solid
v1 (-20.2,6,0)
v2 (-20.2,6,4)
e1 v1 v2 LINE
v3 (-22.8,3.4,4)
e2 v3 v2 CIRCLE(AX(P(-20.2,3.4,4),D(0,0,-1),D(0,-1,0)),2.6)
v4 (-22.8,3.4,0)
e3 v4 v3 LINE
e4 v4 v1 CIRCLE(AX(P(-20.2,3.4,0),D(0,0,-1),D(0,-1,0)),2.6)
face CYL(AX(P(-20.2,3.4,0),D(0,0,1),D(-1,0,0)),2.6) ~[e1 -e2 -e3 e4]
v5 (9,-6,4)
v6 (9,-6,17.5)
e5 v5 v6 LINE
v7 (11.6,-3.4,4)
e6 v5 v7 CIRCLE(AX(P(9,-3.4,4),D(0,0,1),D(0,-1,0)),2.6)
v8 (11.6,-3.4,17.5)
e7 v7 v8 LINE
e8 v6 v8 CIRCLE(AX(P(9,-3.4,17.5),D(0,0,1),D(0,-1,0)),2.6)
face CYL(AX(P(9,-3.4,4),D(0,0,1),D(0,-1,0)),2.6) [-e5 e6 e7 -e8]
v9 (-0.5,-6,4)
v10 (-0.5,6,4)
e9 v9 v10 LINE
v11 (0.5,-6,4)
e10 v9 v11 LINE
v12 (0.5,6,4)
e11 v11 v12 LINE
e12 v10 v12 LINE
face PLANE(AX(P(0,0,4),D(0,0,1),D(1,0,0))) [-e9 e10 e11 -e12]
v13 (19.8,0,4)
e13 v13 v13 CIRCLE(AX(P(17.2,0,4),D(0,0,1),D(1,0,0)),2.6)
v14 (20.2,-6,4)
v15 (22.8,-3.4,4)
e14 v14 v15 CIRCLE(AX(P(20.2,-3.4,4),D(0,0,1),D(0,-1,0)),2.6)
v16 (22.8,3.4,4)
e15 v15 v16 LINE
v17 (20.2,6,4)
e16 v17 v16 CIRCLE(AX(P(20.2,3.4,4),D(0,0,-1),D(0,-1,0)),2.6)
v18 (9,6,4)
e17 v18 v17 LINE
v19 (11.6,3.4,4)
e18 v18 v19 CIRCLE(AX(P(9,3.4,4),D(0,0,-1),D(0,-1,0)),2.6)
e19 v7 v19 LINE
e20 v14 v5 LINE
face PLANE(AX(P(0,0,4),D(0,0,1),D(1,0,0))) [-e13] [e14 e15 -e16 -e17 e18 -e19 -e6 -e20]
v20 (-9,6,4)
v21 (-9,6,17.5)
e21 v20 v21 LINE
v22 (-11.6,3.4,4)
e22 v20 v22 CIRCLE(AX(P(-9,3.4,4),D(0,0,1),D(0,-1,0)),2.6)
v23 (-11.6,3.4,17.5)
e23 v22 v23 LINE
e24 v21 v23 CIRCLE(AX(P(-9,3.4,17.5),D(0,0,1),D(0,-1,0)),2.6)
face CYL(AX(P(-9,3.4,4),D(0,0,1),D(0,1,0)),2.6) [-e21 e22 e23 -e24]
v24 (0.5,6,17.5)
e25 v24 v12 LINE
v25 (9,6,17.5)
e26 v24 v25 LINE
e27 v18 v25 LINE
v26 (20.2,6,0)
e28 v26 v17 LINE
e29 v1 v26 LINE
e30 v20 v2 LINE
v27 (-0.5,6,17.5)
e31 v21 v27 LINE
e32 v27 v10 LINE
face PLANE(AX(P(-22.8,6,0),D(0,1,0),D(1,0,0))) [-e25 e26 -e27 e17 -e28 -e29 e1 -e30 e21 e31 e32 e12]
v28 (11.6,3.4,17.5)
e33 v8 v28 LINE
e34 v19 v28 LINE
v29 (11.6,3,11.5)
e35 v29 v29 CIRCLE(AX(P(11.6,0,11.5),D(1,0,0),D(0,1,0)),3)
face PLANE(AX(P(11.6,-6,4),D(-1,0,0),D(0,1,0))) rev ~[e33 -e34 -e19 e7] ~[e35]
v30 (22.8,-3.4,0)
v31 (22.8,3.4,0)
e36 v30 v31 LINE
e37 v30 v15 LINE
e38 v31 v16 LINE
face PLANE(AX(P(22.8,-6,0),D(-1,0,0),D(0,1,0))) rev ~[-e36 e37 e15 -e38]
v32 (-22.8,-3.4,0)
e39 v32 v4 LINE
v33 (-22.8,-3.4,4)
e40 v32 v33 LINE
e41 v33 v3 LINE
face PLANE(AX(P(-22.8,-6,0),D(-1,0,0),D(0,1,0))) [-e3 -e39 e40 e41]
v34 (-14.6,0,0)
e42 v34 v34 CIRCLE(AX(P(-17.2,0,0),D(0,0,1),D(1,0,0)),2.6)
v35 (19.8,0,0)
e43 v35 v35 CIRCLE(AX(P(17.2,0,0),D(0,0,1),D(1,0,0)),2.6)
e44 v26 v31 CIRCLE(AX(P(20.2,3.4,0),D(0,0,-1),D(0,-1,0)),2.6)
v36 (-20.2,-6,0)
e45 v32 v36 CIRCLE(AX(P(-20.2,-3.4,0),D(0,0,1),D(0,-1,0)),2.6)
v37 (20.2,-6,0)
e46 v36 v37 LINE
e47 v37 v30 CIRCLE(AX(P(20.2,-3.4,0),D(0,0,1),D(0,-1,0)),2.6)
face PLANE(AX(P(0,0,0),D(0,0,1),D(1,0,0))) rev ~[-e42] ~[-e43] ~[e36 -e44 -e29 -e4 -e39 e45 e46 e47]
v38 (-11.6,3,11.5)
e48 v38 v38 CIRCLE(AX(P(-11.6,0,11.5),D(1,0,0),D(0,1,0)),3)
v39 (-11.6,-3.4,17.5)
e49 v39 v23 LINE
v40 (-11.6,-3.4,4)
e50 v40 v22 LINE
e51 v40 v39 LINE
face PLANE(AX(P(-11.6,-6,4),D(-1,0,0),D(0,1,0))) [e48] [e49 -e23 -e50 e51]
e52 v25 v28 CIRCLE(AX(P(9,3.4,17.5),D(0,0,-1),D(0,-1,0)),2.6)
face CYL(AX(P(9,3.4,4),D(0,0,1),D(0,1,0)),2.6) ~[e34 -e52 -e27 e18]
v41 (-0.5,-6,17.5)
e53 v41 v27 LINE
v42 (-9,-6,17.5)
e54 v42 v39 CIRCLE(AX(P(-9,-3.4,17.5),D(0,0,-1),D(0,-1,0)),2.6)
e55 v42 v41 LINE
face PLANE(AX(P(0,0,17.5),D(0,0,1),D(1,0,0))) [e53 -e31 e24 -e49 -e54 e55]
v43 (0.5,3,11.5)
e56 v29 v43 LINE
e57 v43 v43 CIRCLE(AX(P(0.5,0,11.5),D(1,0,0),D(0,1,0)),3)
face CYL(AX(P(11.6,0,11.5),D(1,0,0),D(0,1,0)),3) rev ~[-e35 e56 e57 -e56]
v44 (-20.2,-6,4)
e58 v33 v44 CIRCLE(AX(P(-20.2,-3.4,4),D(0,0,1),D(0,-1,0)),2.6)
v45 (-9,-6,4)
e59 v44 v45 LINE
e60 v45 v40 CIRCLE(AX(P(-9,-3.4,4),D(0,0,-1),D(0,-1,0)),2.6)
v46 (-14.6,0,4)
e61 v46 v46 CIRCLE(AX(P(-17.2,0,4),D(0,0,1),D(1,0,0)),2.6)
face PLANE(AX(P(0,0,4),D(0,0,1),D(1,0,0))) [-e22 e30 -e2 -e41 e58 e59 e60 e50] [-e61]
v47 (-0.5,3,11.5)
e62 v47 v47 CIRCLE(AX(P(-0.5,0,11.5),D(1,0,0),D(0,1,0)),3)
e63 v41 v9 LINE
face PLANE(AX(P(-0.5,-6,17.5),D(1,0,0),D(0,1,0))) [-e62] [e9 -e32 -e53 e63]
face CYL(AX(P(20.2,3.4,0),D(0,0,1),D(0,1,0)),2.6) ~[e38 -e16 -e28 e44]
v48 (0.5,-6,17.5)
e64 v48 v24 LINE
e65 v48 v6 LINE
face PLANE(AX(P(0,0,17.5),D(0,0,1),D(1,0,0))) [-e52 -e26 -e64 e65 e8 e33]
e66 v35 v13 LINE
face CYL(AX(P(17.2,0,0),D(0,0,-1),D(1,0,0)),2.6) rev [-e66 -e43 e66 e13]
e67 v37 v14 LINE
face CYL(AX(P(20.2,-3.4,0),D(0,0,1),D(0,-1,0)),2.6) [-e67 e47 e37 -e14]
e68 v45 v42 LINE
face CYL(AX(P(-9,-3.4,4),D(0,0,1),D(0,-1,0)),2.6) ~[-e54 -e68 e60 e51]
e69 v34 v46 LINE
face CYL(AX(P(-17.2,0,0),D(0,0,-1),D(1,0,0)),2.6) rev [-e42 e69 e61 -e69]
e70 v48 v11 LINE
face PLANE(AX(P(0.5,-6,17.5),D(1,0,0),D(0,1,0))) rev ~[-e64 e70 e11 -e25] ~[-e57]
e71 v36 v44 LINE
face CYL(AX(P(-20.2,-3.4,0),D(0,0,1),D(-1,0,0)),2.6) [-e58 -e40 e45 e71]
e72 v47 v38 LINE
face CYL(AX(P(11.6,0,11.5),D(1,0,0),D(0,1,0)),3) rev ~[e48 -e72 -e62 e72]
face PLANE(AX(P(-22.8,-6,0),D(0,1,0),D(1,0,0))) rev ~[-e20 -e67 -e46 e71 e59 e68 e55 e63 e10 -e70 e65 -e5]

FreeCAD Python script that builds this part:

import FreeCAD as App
import Part
import Sketcher


def edges_at(feature, points):
    """Names of the edges that pass closest to the given points."""
    edges = feature.Shape.Edges
    near = lambda p: min(range(len(edges)), key=lambda i: edges[i].distToShape(Part.Vertex(*p))[0])
    return sorted({f"Edge{near(p) + 1}" for p in points})


def add_polygon(sketch, points):
    """Adds a closed chain of lines whose ends are joined by coincident constraints."""
    first, n = sketch.GeometryCount, len(points)
    for a, b in zip(points, points[1:] + points[:1]):
        sketch.addGeometry(Part.LineSegment(App.Vector(*a, 0), App.Vector(*b, 0)), False)
    for i in range(n):
        sketch.addConstraint(Sketcher.Constraint("Coincident", first + i, 2, first + (i + 1) % n, 1))

doc = App.newDocument("Part")
body = doc.addObject("PartDesign::Body", "Body")

# Sketch on XY plane
sketch1 = body.newObject("Sketcher::SketchObject", "Sketch")
sketch1.AttachmentSupport = (doc.getObject("XY_Plane"), [""])
sketch1.MapMode = "FlatFace"
add_polygon(sketch1, [(-22.8, 6), (-22.8, -6), (22.8, -6), (22.8, 6)])  # lines 0-3
sketch1.addGeometry(Part.Circle(App.Vector(-17.2, 0, 0), App.Vector(0, 0, 1), 2.6), False)  # 4
sketch1.addGeometry(Part.Circle(App.Vector(17.2, 0, 0), App.Vector(0, 0, 1), 2.6), False)  # 5
sketch1.addConstraint(Sketcher.Constraint("Vertical", 0))
sketch1.addConstraint(Sketcher.Constraint("Horizontal", 1))
sketch1.addConstraint(Sketcher.Constraint("Vertical", 2))
sketch1.addConstraint(Sketcher.Constraint("Horizontal", 3))
sketch1.addConstraint(Sketcher.Constraint("Equal", 4, 5))
sketch1.addConstraint(Sketcher.Constraint("Symmetric", 4, 3, 5, 3, -1, 1))
sketch1.addConstraint(Sketcher.Constraint("Symmetric", 0, 2, 2, 2, -1, 1))
sketch1.addConstraint(Sketcher.Constraint("PointOnObject", 4, 3, -1))
sketch1.addConstraint(Sketcher.Constraint("Diameter", 4, 5.2))
sketch1.addConstraint(Sketcher.Constraint("DistanceY", 0, 2, 0, 1, 12.0))
sketch1.addConstraint(Sketcher.Constraint("DistanceX", 1, 1, 1, 2, 45.6))
sketch1.addConstraint(Sketcher.Constraint("DistanceX", 0, 2, 5, 3, 40.0))
pad1 = body.newObject("PartDesign::Pad", "Pad")
pad1.Profile = sketch1
pad1.Length = 4

# Sketch on XY plane
sketch2 = body.newObject("Sketcher::SketchObject", "Sketch001")
sketch2.AttachmentSupport = (doc.getObject("XY_Plane"), [""])
sketch2.MapMode = "FlatFace"
sketch2.AttachmentOffset = App.Placement(App.Vector(0, 0, 4), App.Rotation())
add_polygon(sketch2, [(-11.6, 6), (-11.6, -6), (11.6, -6), (11.6, 6)])  # lines 0-3
sketch2.addConstraint(Sketcher.Constraint("Vertical", 0))
sketch2.addConstraint(Sketcher.Constraint("Horizontal", 1))
sketch2.addConstraint(Sketcher.Constraint("Vertical", 2))
sketch2.addConstraint(Sketcher.Constraint("Horizontal", 3))
sketch2.addConstraint(Sketcher.Constraint("Symmetric", 0, 2, 2, 2, -1, 1))
sketch2.addConstraint(Sketcher.Constraint("DistanceY", 0, 2, 0, 1, 12.0))
sketch2.addConstraint(Sketcher.Constraint("DistanceX", 1, 1, 1, 2, 23.2))
pad2 = body.newObject("PartDesign::Pad", "Pad001")
pad2.Profile = sketch2
pad2.Length = 13.5

# Sketch on YZ plane
sketch3 = body.newObject("Sketcher::SketchObject", "Sketch002")
sketch3.AttachmentSupport = (doc.getObject("YZ_Plane"), [""])
sketch3.MapMode = "FlatFace"
sketch3.AttachmentOffset = App.Placement(App.Vector(0, 0, 11.6), App.Rotation())
sketch3.addGeometry(Part.Circle(App.Vector(0, 11.5, 0), App.Vector(0, 0, 1), 3), False)
sketch3.addConstraint(Sketcher.Constraint("PointOnObject", 0, 3, -2))
sketch3.addConstraint(Sketcher.Constraint("Diameter", 0, 6.0))
sketch3.addConstraint(Sketcher.Constraint("DistanceY", -1, 1, 0, 3, 11.5))
pocket1 = body.newObject("PartDesign::Pocket", "Pocket")
pocket1.Profile = sketch3
pocket1.Type = "ThroughAll"

# Sketch on XY plane
sketch4 = body.newObject("Sketcher::SketchObject", "Sketch003")
sketch4.AttachmentSupport = (doc.getObject("XY_Plane"), [""])
sketch4.MapMode = "FlatFace"
sketch4.AttachmentOffset = App.Placement(App.Vector(0, 0, 17.5), App.Rotation())
add_polygon(sketch4, [(-0.5, 6), (-0.5, -6), (0.5, -6), (0.5, 6)])  # lines 0-3
sketch4.addConstraint(Sketcher.Constraint("Vertical", 0))
sketch4.addConstraint(Sketcher.Constraint("Horizontal", 1))
sketch4.addConstraint(Sketcher.Constraint("Vertical", 2))
sketch4.addConstraint(Sketcher.Constraint("Horizontal", 3))
sketch4.addConstraint(Sketcher.Constraint("Symmetric", 0, 2, 2, 2, -1, 1))
sketch4.addConstraint(Sketcher.Constraint("DistanceX", 1, 1, 1, 2, 1.0))
sketch4.addConstraint(Sketcher.Constraint("DistanceY", 0, 2, 0, 1, 12.0))
pocket2 = body.newObject("PartDesign::Pocket", "Pocket001")
pocket2.Profile = sketch4
pocket2.Length = 13.5
doc.recompute()

fillet = body.newObject("PartDesign::Fillet", "Fillet")
fillet.Base = (pocket2, edges_at(pocket2, [
    (-22.8, -6, 2),
    (-22.8, 6, 2),
    (22.8, -6, 2),
    (22.8, 6, 2),
    (-11.6, 6, 10.75),
    (-11.6, -6, 10.75),
    (11.6, 6, 10.75),
    (11.6, -6, 10.75),
]))
fillet.Radius = 2.6

doc.recompute()
